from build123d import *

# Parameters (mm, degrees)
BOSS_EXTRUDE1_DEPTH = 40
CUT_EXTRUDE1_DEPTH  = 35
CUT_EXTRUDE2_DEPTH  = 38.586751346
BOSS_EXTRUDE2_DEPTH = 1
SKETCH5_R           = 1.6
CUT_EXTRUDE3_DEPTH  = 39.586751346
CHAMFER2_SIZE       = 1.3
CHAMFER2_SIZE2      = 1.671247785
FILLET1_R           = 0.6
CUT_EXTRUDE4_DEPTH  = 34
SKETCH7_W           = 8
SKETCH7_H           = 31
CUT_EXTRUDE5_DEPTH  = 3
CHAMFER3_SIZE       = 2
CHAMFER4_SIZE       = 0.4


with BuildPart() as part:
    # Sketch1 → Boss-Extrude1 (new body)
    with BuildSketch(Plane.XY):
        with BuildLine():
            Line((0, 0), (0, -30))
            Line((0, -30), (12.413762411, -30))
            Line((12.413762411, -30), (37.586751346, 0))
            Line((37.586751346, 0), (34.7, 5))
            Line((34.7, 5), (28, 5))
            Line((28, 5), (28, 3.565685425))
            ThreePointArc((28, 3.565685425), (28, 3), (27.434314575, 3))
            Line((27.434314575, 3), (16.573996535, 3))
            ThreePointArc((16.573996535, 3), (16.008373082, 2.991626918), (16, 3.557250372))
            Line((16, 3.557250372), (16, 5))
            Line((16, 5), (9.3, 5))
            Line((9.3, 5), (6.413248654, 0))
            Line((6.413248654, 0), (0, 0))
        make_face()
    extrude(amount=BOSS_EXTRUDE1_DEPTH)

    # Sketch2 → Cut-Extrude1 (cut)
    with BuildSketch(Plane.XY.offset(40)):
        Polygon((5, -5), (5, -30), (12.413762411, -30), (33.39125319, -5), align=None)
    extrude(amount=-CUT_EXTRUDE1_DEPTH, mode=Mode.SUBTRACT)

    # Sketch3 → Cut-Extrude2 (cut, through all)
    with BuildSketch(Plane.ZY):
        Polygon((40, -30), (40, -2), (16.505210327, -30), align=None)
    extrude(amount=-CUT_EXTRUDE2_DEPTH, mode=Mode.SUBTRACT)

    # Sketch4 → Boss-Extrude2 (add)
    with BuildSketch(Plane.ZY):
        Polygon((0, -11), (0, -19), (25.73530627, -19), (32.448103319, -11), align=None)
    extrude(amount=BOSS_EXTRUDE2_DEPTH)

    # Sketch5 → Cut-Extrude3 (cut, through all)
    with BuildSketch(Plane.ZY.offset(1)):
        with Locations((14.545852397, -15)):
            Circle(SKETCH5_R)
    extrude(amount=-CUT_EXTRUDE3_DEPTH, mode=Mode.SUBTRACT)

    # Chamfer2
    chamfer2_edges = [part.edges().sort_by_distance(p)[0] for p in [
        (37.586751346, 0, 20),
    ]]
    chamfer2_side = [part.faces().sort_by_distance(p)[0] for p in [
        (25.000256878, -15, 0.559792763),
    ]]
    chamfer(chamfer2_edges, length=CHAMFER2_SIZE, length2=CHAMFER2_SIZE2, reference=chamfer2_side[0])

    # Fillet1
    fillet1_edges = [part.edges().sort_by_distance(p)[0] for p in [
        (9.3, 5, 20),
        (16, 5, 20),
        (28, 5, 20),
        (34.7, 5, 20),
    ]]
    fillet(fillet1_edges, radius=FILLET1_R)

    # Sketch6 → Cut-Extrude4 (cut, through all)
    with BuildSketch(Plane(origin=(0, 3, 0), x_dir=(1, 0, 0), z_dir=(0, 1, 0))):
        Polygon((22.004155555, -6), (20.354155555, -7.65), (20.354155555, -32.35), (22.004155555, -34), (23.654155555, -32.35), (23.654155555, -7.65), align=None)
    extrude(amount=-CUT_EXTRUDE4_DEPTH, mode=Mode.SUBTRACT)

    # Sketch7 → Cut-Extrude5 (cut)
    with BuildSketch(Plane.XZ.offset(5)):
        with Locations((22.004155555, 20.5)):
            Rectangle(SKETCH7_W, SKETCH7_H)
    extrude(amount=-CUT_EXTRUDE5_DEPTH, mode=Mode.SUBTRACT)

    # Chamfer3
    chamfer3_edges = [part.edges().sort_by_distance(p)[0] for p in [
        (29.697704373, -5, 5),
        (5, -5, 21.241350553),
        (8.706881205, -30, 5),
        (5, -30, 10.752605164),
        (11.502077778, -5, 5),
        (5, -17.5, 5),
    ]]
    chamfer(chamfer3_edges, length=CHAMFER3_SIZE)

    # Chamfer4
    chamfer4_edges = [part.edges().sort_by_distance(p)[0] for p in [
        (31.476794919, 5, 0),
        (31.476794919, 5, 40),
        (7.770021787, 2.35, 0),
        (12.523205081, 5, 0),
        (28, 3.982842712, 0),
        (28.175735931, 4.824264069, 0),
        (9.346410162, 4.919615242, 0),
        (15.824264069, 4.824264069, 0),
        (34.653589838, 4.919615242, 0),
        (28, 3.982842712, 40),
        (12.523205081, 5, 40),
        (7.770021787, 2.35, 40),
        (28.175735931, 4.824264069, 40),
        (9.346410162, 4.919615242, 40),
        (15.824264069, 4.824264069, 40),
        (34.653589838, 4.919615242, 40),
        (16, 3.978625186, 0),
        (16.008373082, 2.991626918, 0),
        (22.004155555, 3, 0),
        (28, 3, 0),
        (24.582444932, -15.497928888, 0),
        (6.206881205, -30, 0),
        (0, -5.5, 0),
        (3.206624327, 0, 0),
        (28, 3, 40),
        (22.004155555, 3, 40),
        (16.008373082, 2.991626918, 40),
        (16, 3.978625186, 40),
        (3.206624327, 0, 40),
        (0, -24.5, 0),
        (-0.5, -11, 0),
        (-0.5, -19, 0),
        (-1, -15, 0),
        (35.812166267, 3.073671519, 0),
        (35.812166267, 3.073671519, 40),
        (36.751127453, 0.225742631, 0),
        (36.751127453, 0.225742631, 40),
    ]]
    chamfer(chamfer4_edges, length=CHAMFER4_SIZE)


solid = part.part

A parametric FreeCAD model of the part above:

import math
import FreeCAD as App
import Part
import Sketcher

V = App.Vector
Q = App.Units.Quantity


def edges_at(feature, points):
    """Names of the edges that pass closest to the given points."""
    edges = feature.Shape.Edges
    near = lambda p: min(range(len(edges)), key=lambda i: edges[i].distToShape(Part.Vertex(*p))[0])
    return sorted({f"Edge{near(p) + 1}" for p in points})


def add_polygon(sketch, points):
    """Adds a closed chain of lines whose ends are joined by coincident constraints."""
    first, n = sketch.GeometryCount, len(points)
    for a, b in zip(points, points[1:] + points[:1]):
        sketch.addGeometry(Part.LineSegment(App.Vector(*a, 0), App.Vector(*b, 0)), False)
    for i in range(n):
        sketch.addConstraint(Sketcher.Constraint("Coincident", first + i, 2, first + (i + 1) % n, 1))

doc = App.newDocument("Part")
body = doc.addObject("PartDesign::Body", "Body")

sketch1 = body.newObject("Sketcher::SketchObject", "Sketch")
sketch1.AttachmentSupport = (doc.getObject("XY_Plane"), [""])
sketch1.MapMode = "FlatFace"
sketch1.addGeometry([
    Part.LineSegment(V(0, 0, 0), V(0, -30, 0)),
    Part.LineSegment(V(0, -30, 0), V(12.41, -30, 0)),
    Part.LineSegment(V(12.41, -30, 0), V(37.59, 0, 0)),
    Part.LineSegment(V(37.59, 0, 0), V(34.7, 5, 0)),
    Part.LineSegment(V(34.7, 5, 0), V(28, 5, 0)),
    Part.LineSegment(V(28, 5, 0), V(28, 3.57, 0)),
    Part.ArcOfCircle(Part.Circle(V(27.72, 3.28, 0), V(0, 0, 1), 0.4), math.radians(-135), math.radians(45)),
    Part.LineSegment(V(27.43, 3, 0), V(16.57, 3, 0)),
    Part.ArcOfCircle(Part.Circle(V(16.29, 3.28, 0), V(0, 0, 1), 0.4), math.radians(136), math.radians(316)),
    Part.LineSegment(V(16, 3.56, 0), V(16, 5, 0)),
    Part.LineSegment(V(16, 5, 0), V(9.3, 5, 0)),
    Part.LineSegment(V(9.3, 5, 0), V(6.41, 0, 0)),
    Part.LineSegment(V(6.41, 0, 0), V(0, 0, 0)),
], False)
sketch1.addConstraint([
    Sketcher.Constraint("Coincident", 0, 2, 1, 1),
    Sketcher.Constraint("Coincident", 1, 2, 2, 1),
    Sketcher.Constraint("Coincident", 2, 2, 3, 1),
    Sketcher.Constraint("Coincident", 3, 2, 4, 1),
    Sketcher.Constraint("Coincident", 4, 2, 5, 1),
    Sketcher.Constraint("Coincident", 5, 2, 6, 2),
    Sketcher.Constraint("Coincident", 6, 1, 7, 1),
    Sketcher.Constraint("Coincident", 7, 2, 8, 2),
    Sketcher.Constraint("Coincident", 8, 1, 9, 1),
    Sketcher.Constraint("Coincident", 9, 2, 10, 1),
    Sketcher.Constraint("Coincident", 10, 2, 11, 1),
    Sketcher.Constraint("Coincident", 11, 2, 12, 1),
    Sketcher.Constraint("Coincident", 12, 2, 0, 1),
    Sketcher.Constraint("Vertical", 0),
    Sketcher.Constraint("Horizontal", 1),
    Sketcher.Constraint("Horizontal", 4),
    Sketcher.Constraint("Vertical", 5),
    Sketcher.Constraint("Horizontal", 7),
    Sketcher.Constraint("Vertical", 9),
    Sketcher.Constraint("Horizontal", 10),
    Sketcher.Constraint("Horizontal", 12),
    Sketcher.Constraint("Coincident", 12, 2, -1, 1),
    Sketcher.Constraint("Equal", 6, 8),
    Sketcher.Constraint("PointOnObject", 2, 2, -1),
    Sketcher.Constraint("Horizontal", 4, 2, 9, 2),
    Sketcher.Constraint("Equal", 4, 10),
    Sketcher.Constraint("Equal", 3, 11),
    Sketcher.Constraint("Radius", 6, 0.4),
    Sketcher.Constraint("DistanceY", 0, 2, 0, 1, 30.0),
    Sketcher.Constraint("Angle", 2, Q("50 deg")),
    Sketcher.Constraint("Angle", 3, Q("120 deg")),
    Sketcher.Constraint("DistanceX", 4, 2, 4, 1, 6.7),
    Sketcher.Constraint("DistanceY", -1, 1, 3, 2, 5.0),
    Sketcher.Constraint("DistanceX", -1, 1, 4, 2, 28.0),
    Sketcher.Constraint("DistanceY", -1, 1, 6, 1, 3.0),
    Sketcher.Constraint("DistanceX", -1, 1, 8, 1, 16.0),
    Sketcher.Constraint("DistanceX", -1, 1, 8, 3, 16.286998),
    Sketcher.Constraint("DistanceX", 8, 3, 7, 2, 0.286998),
    Sketcher.Constraint("DistanceX", 7, 2, 7, 1, 10.860318),
    Sketcher.Constraint("DistanceX", 8, 3, 6, 3, 11.430159),
])
pad1 = body.newObject("PartDesign::Pad", "Pad")
pad1.Profile = sketch1
pad1.Length = 40

sketch2 = body.newObject("Sketcher::SketchObject", "Sketch001")
sketch2.AttachmentSupport = (doc.getObject("XY_Plane"), [""])
sketch2.MapMode = "FlatFace"
sketch2.AttachmentOffset = App.Placement(V(0, 0, 40), App.Rotation())
add_polygon(sketch2, [(5, -5), (5, -30), (12, -30), (33, -5)])
sketch2.addConstraint([
    Sketcher.Constraint("Vertical", 0),
    Sketcher.Constraint("Horizontal", 1),
    Sketcher.Constraint("Horizontal", 3),
    Sketcher.Constraint("DistanceY", 0, 2, 0, 1, 25.0),
    Sketcher.Constraint("Angle", 2, Q("50 deg")),
    Sketcher.Constraint("DistanceX", -1, 1, 0, 2, 5.0),
    Sketcher.Constraint("DistanceY", 0, 2, -1, 1, 30.0),
    Sketcher.Constraint("DistanceX", 1, 1, 1, 2, 7.413762),
])
pocket1 = body.newObject("PartDesign::Pocket", "Pocket")
pocket1.Profile = sketch2
pocket1.Length = 35

sketch3 = body.newObject("Sketcher::SketchObject", "Sketch002")
sketch3.AttachmentSupport = (doc.getObject("YZ_Plane"), [""])
sketch3.MapMode = "FlatFace"
add_polygon(sketch3, [(-30, 40), (-2, 40), (-30, 17)])
sketch3.addConstraint([
    Sketcher.Constraint("Horizontal", 0),
    Sketcher.Constraint("Vertical", 2),
    Sketcher.Constraint("DistanceX", 0, 1, 0, 2, 28.0),
    Sketcher.Constraint("Angle", 1, Q("-140 deg")),
    Sketcher.Constraint("DistanceX", 0, 2, -1, 1, 2.0),
    Sketcher.Constraint("DistanceY", -1, 1, 0, 2, 40.0),
])
pocket2 = body.newObject("PartDesign::Pocket", "Pocket001")
pocket2.Profile = sketch3
pocket2.Type = "ThroughAll"
pocket2.Reversed = True

sketch4 = body.newObject("Sketcher::SketchObject", "Sketch003")
sketch4.AttachmentSupport = (doc.getObject("YZ_Plane"), [""])
sketch4.MapMode = "FlatFace"
add_polygon(sketch4, [(-11, 0), (-19, 0), (-19, 26), (-11, 32)])
sketch4.addConstraint([
    Sketcher.Constraint("Horizontal", 0),
    Sketcher.Constraint("Vertical", 1),
    Sketcher.Constraint("Vertical", 3),
    Sketcher.Constraint("PointOnObject", 0, 2, -1),
    Sketcher.Constraint("DistanceX", 0, 2, 0, 1, 8.0),
    Sketcher.Constraint("Angle", 2, Q("40 deg")),
    Sketcher.Constraint("DistanceX", 0, 2, -1, 1, 19.0),
    Sketcher.Constraint("DistanceY", 1, 1, 1, 2, 25.735306),
])
pad2 = body.newObject("PartDesign::Pad", "Pad001")
pad2.Profile = sketch4
pad2.Length = 1
pad2.Reversed = True

sketch5 = body.newObject("Sketcher::SketchObject", "Sketch004")
sketch5.AttachmentSupport = (doc.getObject("YZ_Plane"), [""])
sketch5.MapMode = "FlatFace"
sketch5.AttachmentOffset = App.Placement(V(0, 0, -1), App.Rotation())
sketch5.addGeometry(Part.Circle(V(-15, 14.5, 0), V(0, 0, 1), 1.6), False)
sketch5.addConstraint([
    Sketcher.Constraint("Diameter", 0, 3.2),
    Sketcher.Constraint("DistanceX", 0, 3, -1, 1, 15.0),
    Sketcher.Constraint("DistanceY", -1, 1, 0, 3, 14.545852),
])
pocket3 = body.newObject("PartDesign::Pocket", "Pocket002")
pocket3.Profile = sketch5
pocket3.Type = "ThroughAll"
pocket3.Reversed = True
doc.recompute()

chamfer = body.newObject("PartDesign::Chamfer", "Chamfer")
chamfer.Base = (pocket3, edges_at(pocket3, [(37.587, 0, 20)]))
chamfer.ChamferType = "Two distances"
chamfer.Size = 1.3
chamfer.Size2 = 1.671248
chamfer.FlipDirection = True
doc.recompute()

fillet = body.newObject("PartDesign::Fillet", "Fillet")
fillet.Base = (chamfer, edges_at(chamfer, [
    (9.3, 5, 20),
    (16, 5, 20),
    (28, 5, 20),
    (34.7, 5, 20),
]))
fillet.Radius = 0.6

sketch6 = body.newObject("Sketcher::SketchObject", "Sketch005")
sketch6.AttachmentSupport = (doc.getObject("XZ_Plane"), [""])
sketch6.MapMode = "FlatFace"
sketch6.AttachmentOffset = App.Placement(V(0, 0, -3), App.Rotation())
add_polygon(sketch6, [(22, 6), (20.4, 7.7), (20.4, 32.4), (22, 34), (23.7, 32.4), (23.7, 7.7)])
sketch6.addConstraint([
    Sketcher.Constraint("Vertical", 1),
    Sketcher.Constraint("Vertical", 4),
    Sketcher.Constraint("Perpendicular", 0, 2),
    Sketcher.Constraint("Perpendicular", 2, 3),
    Sketcher.Constraint("Perpendicular", 3, 5),
    Sketcher.Constraint("Horizontal", 1, 2, 3, 2),
    Sketcher.Constraint("Horizontal", 0, 2, 4, 2),
    Sketcher.Constraint("Vertical", 2, 2, 5, 2),
    Sketcher.Constraint("DistanceY", 1, 1, 1, 2, 24.7),
    Sketcher.Constraint("DistanceY", -1, 1, 2, 2, 34.0),
    Sketcher.Constraint("DistanceY", -1, 1, 5, 2, 6.0),
    Sketcher.Constraint("DistanceX", -1, 1, 0, 2, 20.354156),
])
pocket4 = body.newObject("PartDesign::Pocket", "Pocket003")
pocket4.Profile = sketch6
pocket4.Type = "ThroughAll"
pocket4.Reversed = True

sketch7 = body.newObject("Sketcher::SketchObject", "Sketch006")
sketch7.AttachmentSupport = (doc.getObject("XZ_Plane"), [""])
sketch7.MapMode = "FlatFace"
sketch7.AttachmentOffset = App.Placement(V(0, 0, 5), App.Rotation())
add_polygon(sketch7, [(18, 36), (18, 5), (26, 5), (26, 36)])
sketch7.addConstraint([
    Sketcher.Constraint("Vertical", 0),
    Sketcher.Constraint("Horizontal", 1),
    Sketcher.Constraint("Vertical", 2),
    Sketcher.Constraint("Horizontal", 3),
    Sketcher.Constraint("DistanceX", 1, 1, 1, 2, 8.0),
    Sketcher.Constraint("DistanceY", 0, 2, 0, 1, 31.0),
    Sketcher.Constraint("DistanceY", -1, 1, 0, 2, 5.0),
    Sketcher.Constraint("DistanceX", -1, 1, 0, 2, 18.004156),
])
pocket5 = body.newObject("PartDesign::Pocket", "Pocket004")
pocket5.Profile = sketch7
pocket5.Length = 3
doc.recompute()

chamfer2 = body.newObject("PartDesign::Chamfer", "Chamfer001")
chamfer2.Base = (pocket5, edges_at(pocket5, [
    (29.698, -5, 5),
    (5, -5, 21.241),
    (8.707, -30, 5),
    (5, -30, 10.753),
    (11.502, -5, 5),
    (5, -17.5, 5),
]))
chamfer2.Size = 2
doc.recompute()

chamfer3 = body.newObject("PartDesign::Chamfer", "Chamfer002")
chamfer3.Base = (chamfer2, edges_at(chamfer2, [
    (31.477, 5, 0),
    (31.477, 5, 40),
    (7.77, 2.35, 0),
    (12.523, 5, 0),
    (28, 3.983, 0),
    (28.176, 4.824, 0),
    (9.346, 4.92, 0),
    (15.824, 4.824, 0),
    (34.654, 4.92, 0),
    (28, 3.983, 40),
    (12.523, 5, 40),
    (7.77, 2.35, 40),
    (28.176, 4.824, 40),
    (9.346, 4.92, 40),
    (15.824, 4.824, 40),
    (34.654, 4.92, 40),
    (16, 3.979, 0),
    (16.008, 2.992, 0),
    (22.004, 3, 0),
    (28, 3, 0),
    (24.582, -15.498, 0),
    (6.207, -30, 0),
    (0, -5.5, 0),
    (3.207, 0, 0),
    (28, 3, 40),
    (22.004, 3, 40),
    (16.008, 2.992, 40),
    (16, 3.979, 40),
    (3.207, 0, 40),
    (0, -24.5, 0),
    (-0.5, -11, 0),
    (-0.5, -19, 0),
    (-1, -15, 0),
    (35.812, 3.074, 0),
    (35.812, 3.074, 40),
    (36.751, 0.226, 0),
    (36.751, 0.226, 40),
]))
chamfer3.Size = 0.4

doc.recompute()
